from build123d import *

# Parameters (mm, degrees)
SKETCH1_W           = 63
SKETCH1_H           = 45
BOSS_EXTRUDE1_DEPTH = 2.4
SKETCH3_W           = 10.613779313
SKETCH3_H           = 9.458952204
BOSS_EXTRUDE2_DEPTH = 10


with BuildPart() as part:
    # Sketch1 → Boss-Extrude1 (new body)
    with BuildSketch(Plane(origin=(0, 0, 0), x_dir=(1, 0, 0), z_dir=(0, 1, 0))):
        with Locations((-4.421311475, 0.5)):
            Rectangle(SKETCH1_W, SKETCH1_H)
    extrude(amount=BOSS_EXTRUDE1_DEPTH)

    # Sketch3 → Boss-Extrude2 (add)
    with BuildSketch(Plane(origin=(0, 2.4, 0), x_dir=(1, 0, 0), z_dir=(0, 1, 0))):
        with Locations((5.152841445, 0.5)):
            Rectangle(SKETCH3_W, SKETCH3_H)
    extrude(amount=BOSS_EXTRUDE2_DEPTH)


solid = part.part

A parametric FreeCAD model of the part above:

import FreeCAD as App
import Part
import Sketcher

V = App.Vector


def add_polygon(sketch, points):
    """Adds a closed chain of lines whose ends are joined by coincident constraints."""
    first, n = sketch.GeometryCount, len(points)
    for a, b in zip(points, points[1:] + points[:1]):
        sketch.addGeometry(Part.LineSegment(App.Vector(*a, 0), App.Vector(*b, 0)), False)
    for i in range(n):
        sketch.addConstraint(Sketcher.Constraint("Coincident", first + i, 2, first + (i + 1) % n, 1))

doc = App.newDocument("Part")
body = doc.addObject("PartDesign::Body", "Body")

sketch1 = body.newObject("Sketcher::SketchObject", "Sketch")
sketch1.AttachmentSupport = (doc.getObject("XZ_Plane"), [""])
sketch1.MapMode = "FlatFace"
add_polygon(sketch1, [(-35.921311, -23), (-35.921311, 22), (27.078689, 22), (27.078689, -23)])
sketch1.addConstraint([
    Sketcher.Constraint("Vertical", 0),
    Sketcher.Constraint("Horizontal", 1),
    Sketcher.Constraint("Vertical", 2),
    Sketcher.Constraint("Horizontal", 3),
    Sketcher.Constraint("DistanceX", 1, 1, 1, 2, 63.0),
    Sketcher.Constraint("DistanceY", 0, 1, 0, 2, 45.0),
    Sketcher.Constraint("DistanceY", -1, 1, 0, 2, 22.0),
    Sketcher.Constraint("DistanceX", 0, 2, -1, 1, 35.921311),
])
pad1 = body.newObject("PartDesign::Pad", "Pad")
pad1.Profile = sketch1
pad1.Length = 2.4
pad1.Reversed = True

sketch2 = body.newObject("Sketcher::SketchObject", "Sketch001")
sketch2.AttachmentSupport = (doc.getObject("XZ_Plane"), [""])
sketch2.MapMode = "FlatFace"
sketch2.AttachmentOffset = App.Placement(V(0, 0, -2.4), App.Rotation())
add_polygon(sketch2, [(-0.154048, -5.229476), (-0.154048, 4.229476), (10.459731, 4.229476), (10.459731, -5.229476)])
sketch2.addConstraint([
    Sketcher.Constraint("Vertical", 0),
    Sketcher.Constraint("Horizontal", 1),
    Sketcher.Constraint("Vertical", 2),
    Sketcher.Constraint("Horizontal", 3),
    Sketcher.Constraint("DistanceX", 1, 1, 1, 2, 10.613779),
    Sketcher.Constraint("DistanceY", 0, 1, 0, 2, 9.458952),
    Sketcher.Constraint("DistanceX", 0, 2, -1, 1, 0.154048),
    Sketcher.Constraint("DistanceY", -1, 1, 0, 2, 4.229476),
])
pad2 = body.newObject("PartDesign::Pad", "Pad001")
pad2.Profile = sketch2
pad2.Length = 10
pad2.Reversed = True

doc.recompute()
